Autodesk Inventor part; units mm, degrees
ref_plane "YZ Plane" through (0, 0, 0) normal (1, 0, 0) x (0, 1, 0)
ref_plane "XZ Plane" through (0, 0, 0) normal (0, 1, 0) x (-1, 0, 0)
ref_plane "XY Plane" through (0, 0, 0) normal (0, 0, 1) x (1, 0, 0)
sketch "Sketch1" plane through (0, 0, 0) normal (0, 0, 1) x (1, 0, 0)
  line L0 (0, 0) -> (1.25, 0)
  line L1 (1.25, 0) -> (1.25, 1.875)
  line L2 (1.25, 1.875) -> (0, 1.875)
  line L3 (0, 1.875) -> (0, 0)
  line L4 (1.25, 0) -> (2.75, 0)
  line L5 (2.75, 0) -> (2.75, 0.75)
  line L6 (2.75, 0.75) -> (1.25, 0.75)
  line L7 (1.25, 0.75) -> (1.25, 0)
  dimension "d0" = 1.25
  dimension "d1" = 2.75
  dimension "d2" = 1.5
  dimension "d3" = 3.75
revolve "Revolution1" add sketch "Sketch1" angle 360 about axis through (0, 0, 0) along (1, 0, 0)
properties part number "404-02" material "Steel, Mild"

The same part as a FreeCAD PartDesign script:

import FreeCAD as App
import Part
import Sketcher
from FreeCAD import Vector
Q = App.Units.Quantity

doc = App.newDocument("Part")
params = doc.addObject("Spreadsheet::Sheet", "Params")
for row, (alias, value) in enumerate([
    ("sketch1_width", "1.5 mm"),
    ("sketch1_width2", "2.75 mm"),
    ("sketch1_height", "0.75 mm"),
    ("revolution_angle", "360 deg"),
], start=1):
    params.set(f"A{row}", alias)
    params.set(f"B{row}", "=" + value)
    params.setAlias(f"B{row}", alias)

body = doc.addObject("PartDesign::Body", "Body")

sketch1 = doc.addObject("Sketcher::SketchObject", "Sketch")
body.addObject(sketch1)
sketch1.AttachmentSupport = (doc.XY_Plane, [""])
sketch1.MapMode = "FlatFace"
sketch1.addGeometry(Part.LineSegment(Vector(0, 1.9, 0), Vector(0, 0, 0)), False)
sketch1.addGeometry(Part.LineSegment(Vector(0, 0, 0), Vector(2.8, 0, 0)), False)
sketch1.addGeometry(Part.LineSegment(Vector(2.8, 0, 0), Vector(2.8, 0.8, 0)), False)
sketch1.addGeometry(Part.LineSegment(Vector(2.8, 0.8, 0), Vector(1.2, 0.8, 0)), False)
sketch1.addGeometry(Part.LineSegment(Vector(1.2, 0.8, 0), Vector(1.2, 1.9, 0)), False)
sketch1.addGeometry(Part.LineSegment(Vector(1.2, 1.9, 0), Vector(0, 1.9, 0)), False)
sketch1.addConstraint(Sketcher.Constraint("Coincident", 0, 2, 1, 1))
sketch1.addConstraint(Sketcher.Constraint("Coincident", 1, 2, 2, 1))
sketch1.addConstraint(Sketcher.Constraint("Coincident", 2, 2, 3, 1))
sketch1.addConstraint(Sketcher.Constraint("Coincident", 3, 2, 4, 1))
sketch1.addConstraint(Sketcher.Constraint("Coincident", 4, 2, 5, 1))
sketch1.addConstraint(Sketcher.Constraint("Coincident", 5, 2, 0, 1))
sketch1.addConstraint(Sketcher.Constraint("Vertical", 0))
sketch1.addConstraint(Sketcher.Constraint("Horizontal", 1))
sketch1.addConstraint(Sketcher.Constraint("Vertical", 2))
sketch1.addConstraint(Sketcher.Constraint("Horizontal", 3))
sketch1.addConstraint(Sketcher.Constraint("Vertical", 4))
sketch1.addConstraint(Sketcher.Constraint("Horizontal", 5))
sketch1.addConstraint(Sketcher.Constraint("Coincident", 0, 2, -1, 1))
sketch1.addConstraint(Sketcher.Constraint("DistanceX", 3, 2, 3, 1, Q("1.5 mm")))
sketch1.addConstraint(Sketcher.Constraint("DistanceX", 1, 1, 1, 2, Q("2.75 mm")))
sketch1.addConstraint(Sketcher.Constraint("DistanceY", 2, 1, 2, 2, Q("0.75 mm")))
sketch1.addConstraint(Sketcher.Constraint("DistanceY", 0, 2, 0, 1, Q("1.875 mm")))
sketch1.setExpression("Constraints[13]", "Params.sketch1_width")
sketch1.setExpression("Constraints[14]", "Params.sketch1_width2")
sketch1.setExpression("Constraints[15]", "Params.sketch1_height")
revolution = doc.addObject("PartDesign::Revolution", "Revolution")
body.addObject(revolution)
revolution.Profile = sketch1
revolution.ReferenceAxis = (sketch1, ["H_Axis"])
revolution.setExpression("Angle", "Params.revolution_angle")

doc.recompute()
